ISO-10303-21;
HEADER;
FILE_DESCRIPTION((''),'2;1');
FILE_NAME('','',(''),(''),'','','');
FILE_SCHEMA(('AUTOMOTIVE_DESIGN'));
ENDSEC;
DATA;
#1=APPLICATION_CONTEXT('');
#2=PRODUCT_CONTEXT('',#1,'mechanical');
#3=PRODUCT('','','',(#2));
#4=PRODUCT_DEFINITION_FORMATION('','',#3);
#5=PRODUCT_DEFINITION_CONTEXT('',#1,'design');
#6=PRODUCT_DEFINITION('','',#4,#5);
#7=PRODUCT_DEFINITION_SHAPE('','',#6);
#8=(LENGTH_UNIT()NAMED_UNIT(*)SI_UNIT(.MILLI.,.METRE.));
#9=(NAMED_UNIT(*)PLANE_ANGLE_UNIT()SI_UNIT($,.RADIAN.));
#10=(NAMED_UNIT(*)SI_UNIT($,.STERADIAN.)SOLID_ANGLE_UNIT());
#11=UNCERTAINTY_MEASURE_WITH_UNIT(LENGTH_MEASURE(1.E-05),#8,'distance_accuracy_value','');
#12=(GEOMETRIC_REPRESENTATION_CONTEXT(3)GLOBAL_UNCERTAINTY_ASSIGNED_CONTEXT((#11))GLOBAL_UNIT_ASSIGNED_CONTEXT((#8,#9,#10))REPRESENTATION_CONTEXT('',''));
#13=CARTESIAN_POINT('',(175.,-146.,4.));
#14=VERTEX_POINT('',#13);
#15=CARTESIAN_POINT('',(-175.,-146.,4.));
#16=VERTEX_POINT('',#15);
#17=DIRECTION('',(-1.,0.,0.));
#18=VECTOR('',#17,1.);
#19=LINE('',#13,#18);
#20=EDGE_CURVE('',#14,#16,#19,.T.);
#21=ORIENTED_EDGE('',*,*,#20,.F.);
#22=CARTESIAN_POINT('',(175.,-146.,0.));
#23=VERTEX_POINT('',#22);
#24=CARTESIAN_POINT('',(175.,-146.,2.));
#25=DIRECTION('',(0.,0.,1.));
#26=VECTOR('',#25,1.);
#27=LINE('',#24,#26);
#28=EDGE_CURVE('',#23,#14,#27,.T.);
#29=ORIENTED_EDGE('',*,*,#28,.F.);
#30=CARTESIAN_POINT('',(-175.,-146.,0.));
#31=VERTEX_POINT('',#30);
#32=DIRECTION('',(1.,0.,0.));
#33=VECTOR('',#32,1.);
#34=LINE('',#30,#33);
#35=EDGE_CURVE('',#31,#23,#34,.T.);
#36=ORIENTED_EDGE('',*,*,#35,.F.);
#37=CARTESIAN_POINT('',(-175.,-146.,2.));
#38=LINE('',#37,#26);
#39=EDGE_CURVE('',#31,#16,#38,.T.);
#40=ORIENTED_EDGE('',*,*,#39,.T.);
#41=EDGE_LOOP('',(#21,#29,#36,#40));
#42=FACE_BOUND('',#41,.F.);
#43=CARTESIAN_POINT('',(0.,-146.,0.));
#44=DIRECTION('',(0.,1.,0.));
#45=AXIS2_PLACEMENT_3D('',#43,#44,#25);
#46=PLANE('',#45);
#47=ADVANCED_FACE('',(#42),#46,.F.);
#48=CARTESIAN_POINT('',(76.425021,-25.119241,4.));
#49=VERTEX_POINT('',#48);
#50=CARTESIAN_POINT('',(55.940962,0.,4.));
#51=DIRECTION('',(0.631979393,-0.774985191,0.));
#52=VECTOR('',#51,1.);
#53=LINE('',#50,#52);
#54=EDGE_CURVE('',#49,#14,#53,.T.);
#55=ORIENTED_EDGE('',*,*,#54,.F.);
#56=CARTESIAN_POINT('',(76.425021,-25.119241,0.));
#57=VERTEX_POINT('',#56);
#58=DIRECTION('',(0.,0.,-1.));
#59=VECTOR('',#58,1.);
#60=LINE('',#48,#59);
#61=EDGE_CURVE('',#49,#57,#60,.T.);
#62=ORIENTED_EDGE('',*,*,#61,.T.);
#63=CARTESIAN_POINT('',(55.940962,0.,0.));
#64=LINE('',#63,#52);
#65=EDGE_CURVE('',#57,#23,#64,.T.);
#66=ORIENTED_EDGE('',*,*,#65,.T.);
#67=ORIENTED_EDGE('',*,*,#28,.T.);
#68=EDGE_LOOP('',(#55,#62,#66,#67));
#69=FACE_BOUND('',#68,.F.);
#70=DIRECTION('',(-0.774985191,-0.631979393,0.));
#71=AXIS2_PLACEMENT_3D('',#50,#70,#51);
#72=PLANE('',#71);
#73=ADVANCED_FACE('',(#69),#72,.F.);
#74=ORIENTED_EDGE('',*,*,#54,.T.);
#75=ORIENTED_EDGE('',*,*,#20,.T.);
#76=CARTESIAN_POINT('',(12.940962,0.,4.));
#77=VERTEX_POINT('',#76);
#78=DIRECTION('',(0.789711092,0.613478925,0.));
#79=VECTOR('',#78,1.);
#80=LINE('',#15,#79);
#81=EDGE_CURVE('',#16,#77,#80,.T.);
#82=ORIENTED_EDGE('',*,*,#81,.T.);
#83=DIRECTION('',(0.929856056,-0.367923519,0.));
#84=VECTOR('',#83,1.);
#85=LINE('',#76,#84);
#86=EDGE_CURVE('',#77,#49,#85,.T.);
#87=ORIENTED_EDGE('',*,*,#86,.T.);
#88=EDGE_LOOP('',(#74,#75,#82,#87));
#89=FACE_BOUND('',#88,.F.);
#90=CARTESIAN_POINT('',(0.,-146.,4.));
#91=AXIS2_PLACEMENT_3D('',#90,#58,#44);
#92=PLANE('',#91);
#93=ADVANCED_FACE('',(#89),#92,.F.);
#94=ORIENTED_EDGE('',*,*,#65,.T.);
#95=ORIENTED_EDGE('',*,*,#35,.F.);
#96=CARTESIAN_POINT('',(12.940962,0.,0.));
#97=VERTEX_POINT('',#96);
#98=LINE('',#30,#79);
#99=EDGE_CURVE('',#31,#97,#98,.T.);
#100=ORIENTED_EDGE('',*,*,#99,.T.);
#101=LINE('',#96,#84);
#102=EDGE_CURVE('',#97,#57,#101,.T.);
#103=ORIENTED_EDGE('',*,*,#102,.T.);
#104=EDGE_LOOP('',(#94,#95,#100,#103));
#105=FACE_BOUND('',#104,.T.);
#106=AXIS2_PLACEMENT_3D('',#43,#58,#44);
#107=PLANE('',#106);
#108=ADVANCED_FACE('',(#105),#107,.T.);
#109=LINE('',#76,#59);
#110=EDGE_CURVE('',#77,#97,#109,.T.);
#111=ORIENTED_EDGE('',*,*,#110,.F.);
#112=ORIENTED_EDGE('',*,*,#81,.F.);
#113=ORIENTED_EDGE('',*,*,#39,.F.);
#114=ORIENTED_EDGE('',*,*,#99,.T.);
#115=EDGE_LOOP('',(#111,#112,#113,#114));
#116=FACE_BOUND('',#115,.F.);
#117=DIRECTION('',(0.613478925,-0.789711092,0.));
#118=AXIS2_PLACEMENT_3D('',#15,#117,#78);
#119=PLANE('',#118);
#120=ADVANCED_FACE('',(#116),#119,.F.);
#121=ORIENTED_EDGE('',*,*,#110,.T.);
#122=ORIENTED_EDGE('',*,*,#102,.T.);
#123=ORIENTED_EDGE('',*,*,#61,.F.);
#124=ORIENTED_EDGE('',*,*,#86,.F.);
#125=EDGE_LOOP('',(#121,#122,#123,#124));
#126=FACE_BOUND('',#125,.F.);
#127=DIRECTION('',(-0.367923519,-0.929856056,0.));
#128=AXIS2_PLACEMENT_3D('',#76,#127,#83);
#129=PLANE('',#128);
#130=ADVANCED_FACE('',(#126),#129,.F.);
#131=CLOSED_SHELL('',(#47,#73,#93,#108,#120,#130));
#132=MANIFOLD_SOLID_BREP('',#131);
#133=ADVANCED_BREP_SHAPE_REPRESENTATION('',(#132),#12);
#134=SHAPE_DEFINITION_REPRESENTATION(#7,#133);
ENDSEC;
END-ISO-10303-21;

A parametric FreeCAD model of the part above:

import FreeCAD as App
import Part
import Sketcher
from FreeCAD import Vector

doc = App.newDocument("Part")
body = doc.addObject("PartDesign::Body", "Body")

# Sketch on YZ plane
sketch1 = doc.addObject("Sketcher::SketchObject", "Sketch")
body.addObject(sketch1)
sketch1.AttachmentSupport = (doc.YZ_Plane, [""])
sketch1.MapMode = "FlatFace"
sketch1.addGeometry([
    Part.LineSegment(Vector(-146, 4, 0), Vector(-146, 0, 0)),
    Part.LineSegment(Vector(-146, 0, 0), Vector(0, 0, 0)),
    Part.LineSegment(Vector(0, 0, 0), Vector(0, 4, 0)),
    Part.LineSegment(Vector(0, 4, 0), Vector(-146, 4, 0)),
], False)
sketch1.addConstraint([
    Sketcher.Constraint("Coincident", 0, 2, 1, 1),
    Sketcher.Constraint("Coincident", 1, 2, 2, 1),
    Sketcher.Constraint("Coincident", 2, 2, 3, 1),
    Sketcher.Constraint("Coincident", 3, 2, 0, 1),
    Sketcher.Constraint("Vertical", 0),
    Sketcher.Constraint("Horizontal", 1),
    Sketcher.Constraint("Vertical", 2),
    Sketcher.Constraint("Horizontal", 3),
    Sketcher.Constraint("Coincident", 1, 2, -1, 1),
    Sketcher.Constraint("DistanceX", 1, 1, 1, 2, 146.0),
    Sketcher.Constraint("DistanceY", 0, 2, 0, 1, 4.0),
])
pad1 = doc.addObject("PartDesign::Pad", "Pad")
body.addObject(pad1)
pad1.Profile = sketch1
pad1.Length = 350
pad1.Midplane = True

# Sketch on XY plane
sketch2 = doc.addObject("Sketcher::SketchObject", "Sketch001")
body.addObject(sketch2)
sketch2.AttachmentSupport = (doc.XY_Plane, [""])
sketch2.MapMode = "FlatFace"
sketch2.AttachmentOffset = App.Placement(Vector(0, 0, 4), App.Rotation())
sketch2.addGeometry([
    Part.LineSegment(Vector(-175, 0, 0), Vector(-175, -146, 0)),  # 0
    Part.LineSegment(Vector(-175, -146, 0), Vector(12.940962, 0, 0)),  # 1
    Part.LineSegment(Vector(12.940962, 0, 0), Vector(-175, 0, 0)),  # 2
    Part.LineSegment(Vector(55.940962, 0, 0), Vector(175, -146, 0)),  # 3
    Part.LineSegment(Vector(175, -146, 0), Vector(175, 0, 0)),  # 4
    Part.LineSegment(Vector(175, 0, 0), Vector(55.940962, 0, 0)),  # 5
], False)
sketch2.addConstraint([
    Sketcher.Constraint("Coincident", 0, 2, 1, 1),
    Sketcher.Constraint("Coincident", 1, 2, 2, 1),
    Sketcher.Constraint("Coincident", 2, 2, 0, 1),
    Sketcher.Constraint("Coincident", 3, 2, 4, 1),
    Sketcher.Constraint("Coincident", 4, 2, 5, 1),
    Sketcher.Constraint("Coincident", 5, 2, 3, 1),
    Sketcher.Constraint("Vertical", 0),
    Sketcher.Constraint("Horizontal", 2),
    Sketcher.Constraint("Vertical", 4),
    Sketcher.Constraint("Horizontal", 5),
    Sketcher.Constraint("Symmetric", 2, 2, 4, 2, -1, 1),
    Sketcher.Constraint("PointOnObject", 1, 2, -1),
    Sketcher.Constraint("Horizontal", 0, 2, 3, 2),
    Sketcher.Constraint("DistanceY", 0, 2, 0, 1, 146.0),
    Sketcher.Constraint("DistanceX", 0, 2, -1, 1, 175.0),
    Sketcher.Constraint("DistanceX", 1, 2, 5, 2, 43.0),
    Sketcher.Constraint("DistanceX", 5, 2, 5, 1, 119.059038),
])
pocket1 = doc.addObject("PartDesign::Pocket", "Pocket")
body.addObject(pocket1)
pocket1.Profile = sketch2
pocket1.Type = "ThroughAll"

# Sketch on XY plane
sketch3 = doc.addObject("Sketcher::SketchObject", "Sketch002")
body.addObject(sketch3)
sketch3.AttachmentSupport = (doc.XY_Plane, [""])
sketch3.MapMode = "FlatFace"
sketch3.AttachmentOffset = App.Placement(Vector(0, 0, 4), App.Rotation())
sketch3.addGeometry([
    Part.LineSegment(Vector(55.940962, 0, 0), Vector(12.940962, 0, 0)),
    Part.LineSegment(Vector(12.940962, 0, 0), Vector(76.425021, -25.119241, 0)),
    Part.LineSegment(Vector(76.425021, -25.119241, 0), Vector(55.940962, 0, 0)),
], False)
sketch3.addConstraint([
    Sketcher.Constraint("Coincident", 0, 2, 1, 1),
    Sketcher.Constraint("Coincident", 1, 2, 2, 1),
    Sketcher.Constraint("Coincident", 2, 2, 0, 1),
    Sketcher.Constraint("Horizontal", 0),
    Sketcher.Constraint("PointOnObject", 0, 2, -1),
    Sketcher.Constraint("DistanceX", 0, 2, 0, 1, 43.0),
    Sketcher.Constraint("DistanceX", -1, 1, 1, 2, 76.425021),
    Sketcher.Constraint("DistanceY", 1, 2, -1, 1, 25.119241),
    Sketcher.Constraint("DistanceX", 0, 2, 1, 2, 63.484059),
])
pocket2 = doc.addObject("PartDesign::Pocket", "Pocket001")
body.addObject(pocket2)
pocket2.Profile = sketch3
pocket2.Type = "ThroughAll"

doc.recompute()
